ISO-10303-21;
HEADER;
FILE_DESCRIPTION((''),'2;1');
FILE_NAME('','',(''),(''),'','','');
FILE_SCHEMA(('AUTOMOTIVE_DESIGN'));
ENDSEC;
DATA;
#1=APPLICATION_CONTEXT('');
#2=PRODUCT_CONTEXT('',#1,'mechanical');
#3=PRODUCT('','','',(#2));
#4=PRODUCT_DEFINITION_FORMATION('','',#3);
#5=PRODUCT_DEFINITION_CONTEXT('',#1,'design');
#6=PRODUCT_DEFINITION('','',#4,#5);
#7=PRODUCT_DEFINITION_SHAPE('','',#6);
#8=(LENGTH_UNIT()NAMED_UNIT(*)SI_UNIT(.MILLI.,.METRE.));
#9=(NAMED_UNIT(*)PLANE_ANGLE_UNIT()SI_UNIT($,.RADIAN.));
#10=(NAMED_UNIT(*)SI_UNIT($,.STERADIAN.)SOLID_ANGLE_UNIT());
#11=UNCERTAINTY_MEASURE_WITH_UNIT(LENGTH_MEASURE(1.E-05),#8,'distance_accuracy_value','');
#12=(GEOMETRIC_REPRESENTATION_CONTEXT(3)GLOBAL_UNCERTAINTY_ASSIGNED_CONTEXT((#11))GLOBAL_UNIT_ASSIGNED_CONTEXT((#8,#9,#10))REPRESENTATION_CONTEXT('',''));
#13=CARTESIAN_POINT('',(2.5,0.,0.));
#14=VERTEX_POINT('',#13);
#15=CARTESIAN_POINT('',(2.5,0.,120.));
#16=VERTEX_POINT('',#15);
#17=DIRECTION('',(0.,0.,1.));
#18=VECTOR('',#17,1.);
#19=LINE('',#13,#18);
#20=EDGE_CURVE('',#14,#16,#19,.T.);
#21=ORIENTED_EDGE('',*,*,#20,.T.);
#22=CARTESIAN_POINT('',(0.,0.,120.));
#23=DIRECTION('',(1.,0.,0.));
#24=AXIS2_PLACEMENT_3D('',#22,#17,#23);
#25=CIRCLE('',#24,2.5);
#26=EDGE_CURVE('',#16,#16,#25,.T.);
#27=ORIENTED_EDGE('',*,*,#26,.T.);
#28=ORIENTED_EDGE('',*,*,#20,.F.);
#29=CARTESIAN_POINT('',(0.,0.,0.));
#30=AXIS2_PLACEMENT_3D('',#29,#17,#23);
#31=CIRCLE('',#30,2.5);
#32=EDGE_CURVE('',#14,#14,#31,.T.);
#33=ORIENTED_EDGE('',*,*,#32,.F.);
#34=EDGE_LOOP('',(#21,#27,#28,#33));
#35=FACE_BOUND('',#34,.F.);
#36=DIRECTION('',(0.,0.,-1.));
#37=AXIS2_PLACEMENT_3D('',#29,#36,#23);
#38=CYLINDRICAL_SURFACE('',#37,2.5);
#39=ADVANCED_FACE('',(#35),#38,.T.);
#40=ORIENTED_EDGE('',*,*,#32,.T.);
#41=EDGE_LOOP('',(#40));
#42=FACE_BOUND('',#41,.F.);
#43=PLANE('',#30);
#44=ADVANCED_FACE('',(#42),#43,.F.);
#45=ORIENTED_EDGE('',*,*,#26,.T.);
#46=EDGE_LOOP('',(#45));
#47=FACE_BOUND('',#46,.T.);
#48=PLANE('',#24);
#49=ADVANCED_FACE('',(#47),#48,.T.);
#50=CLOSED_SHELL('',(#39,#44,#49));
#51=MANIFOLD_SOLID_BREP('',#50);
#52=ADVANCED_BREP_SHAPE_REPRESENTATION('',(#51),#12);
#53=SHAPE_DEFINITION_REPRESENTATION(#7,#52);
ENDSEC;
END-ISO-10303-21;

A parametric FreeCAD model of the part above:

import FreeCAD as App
import Part
import Sketcher
Q = App.Units.Quantity

doc = App.newDocument("Part")
body = doc.addObject("PartDesign::Body", "Body")

# Sketch on XY plane
sketch1 = body.newObject("Sketcher::SketchObject", "Sketch")
sketch1.AttachmentSupport = (doc.getObject("XY_Plane"), [""])
sketch1.MapMode = "FlatFace"
sketch1.addGeometry(Part.Circle(App.Vector(0, 0, 0), App.Vector(0, 0, 1), 2.5), False)
sketch1.addConstraint(Sketcher.Constraint("Coincident", 0, 3, -1, 1))
sketch1.addConstraint(Sketcher.Constraint("Diameter", 0, Q("5 mm")))
pad1 = body.newObject("PartDesign::Pad", "Pad")
pad1.Profile = sketch1
pad1.Length = 120

doc.recompute()
